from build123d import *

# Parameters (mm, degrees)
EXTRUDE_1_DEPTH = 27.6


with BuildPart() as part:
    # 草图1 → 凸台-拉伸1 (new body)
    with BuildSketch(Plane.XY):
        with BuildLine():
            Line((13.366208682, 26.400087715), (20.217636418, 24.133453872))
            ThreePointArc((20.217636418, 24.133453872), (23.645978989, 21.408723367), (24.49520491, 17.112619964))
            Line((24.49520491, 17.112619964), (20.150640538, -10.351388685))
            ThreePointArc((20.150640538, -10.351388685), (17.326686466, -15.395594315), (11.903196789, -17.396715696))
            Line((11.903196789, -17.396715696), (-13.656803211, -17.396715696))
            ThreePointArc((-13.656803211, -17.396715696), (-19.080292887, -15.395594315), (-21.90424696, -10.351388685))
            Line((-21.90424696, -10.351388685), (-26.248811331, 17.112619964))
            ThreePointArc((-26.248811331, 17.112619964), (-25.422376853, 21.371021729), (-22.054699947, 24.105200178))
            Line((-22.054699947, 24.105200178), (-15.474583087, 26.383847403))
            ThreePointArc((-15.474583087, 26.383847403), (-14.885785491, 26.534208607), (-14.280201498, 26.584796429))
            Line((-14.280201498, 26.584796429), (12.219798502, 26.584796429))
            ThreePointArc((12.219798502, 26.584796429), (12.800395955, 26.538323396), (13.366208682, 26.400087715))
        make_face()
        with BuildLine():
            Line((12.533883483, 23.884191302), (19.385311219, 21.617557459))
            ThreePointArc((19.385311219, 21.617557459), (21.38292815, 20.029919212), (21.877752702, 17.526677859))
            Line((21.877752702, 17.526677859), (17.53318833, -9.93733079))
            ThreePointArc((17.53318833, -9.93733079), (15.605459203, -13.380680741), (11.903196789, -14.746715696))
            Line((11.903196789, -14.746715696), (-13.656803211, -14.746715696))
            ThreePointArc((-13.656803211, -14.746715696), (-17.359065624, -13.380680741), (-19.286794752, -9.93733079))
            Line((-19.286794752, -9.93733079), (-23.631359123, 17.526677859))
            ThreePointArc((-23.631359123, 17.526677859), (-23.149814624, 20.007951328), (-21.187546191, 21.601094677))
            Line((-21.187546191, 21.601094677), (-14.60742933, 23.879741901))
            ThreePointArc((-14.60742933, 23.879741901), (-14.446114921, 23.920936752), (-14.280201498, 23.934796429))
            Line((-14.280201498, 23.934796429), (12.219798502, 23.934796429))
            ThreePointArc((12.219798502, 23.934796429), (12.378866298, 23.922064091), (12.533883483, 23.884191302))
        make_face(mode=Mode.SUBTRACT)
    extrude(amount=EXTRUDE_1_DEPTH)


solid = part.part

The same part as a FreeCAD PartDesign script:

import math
import FreeCAD as App
import Part
import Sketcher

V = App.Vector

doc = App.newDocument("Part")
body = doc.addObject("PartDesign::Body", "Body")

# Sketch on XY plane
sketch1 = doc.addObject("Sketcher::SketchObject", "Sketch")
body.addObject(sketch1)
sketch1.AttachmentSupport = (doc.XY_Plane, [""])
sketch1.MapMode = "FlatFace"
sketch1.addGeometry([
    Part.LineSegment(V(20.22, 24.13, 0), V(13.37, 26.4, 0)),  # 0
    Part.ArcOfCircle(Part.Circle(V(12.22, 22.93, 0), V(0, 0, 1), 3.65), math.radians(71.69), math.radians(90)),  # 1
    Part.LineSegment(V(12.22, 26.58, 0), V(-14.28, 26.58, 0)),  # 2
    Part.ArcOfCircle(Part.Circle(V(-14.28, 22.93, 0), V(0, 0, 1), 3.65), math.radians(90), math.radians(109.1)),  # 3
    Part.LineSegment(V(-15.47, 26.38, 0), V(-22.05, 24.11, 0)),  # 4
    Part.ArcOfCircle(Part.Circle(V(-19.98, 18.1, 0), V(0, 0, 1), 6.35), math.radians(109), math.radians(189)),  # 5
    Part.LineSegment(V(-26.25, 17.11, 0), V(-21.9, -10.35, 0)),  # 6
    Part.ArcOfCircle(Part.Circle(V(-13.66, -9.05, 0), V(0, 0, 1), 8.35), math.radians(-171), math.radians(-90)),  # 7
    Part.LineSegment(V(-13.66, -17.4, 0), V(11.9, -17.4, 0)),  # 8
    Part.ArcOfCircle(Part.Circle(V(11.9, -9.05, 0), V(0, 0, 1), 8.35), math.radians(-90), math.radians(-9)),  # 9
    Part.LineSegment(V(20.15, -10.35, 0), V(24.5, 17.11, 0)),  # 10
    Part.ArcOfCircle(Part.Circle(V(18.22, 18.1, 0), V(0, 0, 1), 6.35), math.radians(-9), math.radians(72)),  # 11
    Part.LineSegment(V(12.53, 23.88, 0), V(19.39, 21.62, 0)),  # 12
    Part.ArcOfCircle(Part.Circle(V(18.22, 18.1, 0), V(0, 0, 1), 3.7), math.radians(-9), math.radians(72)),  # 13
    Part.LineSegment(V(21.88, 17.53, 0), V(17.53, -9.94, 0)),  # 14
    Part.ArcOfCircle(Part.Circle(V(11.9, -9.05, 0), V(0, 0, 1), 5.7), math.radians(-90), math.radians(-9)),  # 15
    Part.LineSegment(V(11.9, -14.75, 0), V(-13.66, -14.75, 0)),  # 16
    Part.ArcOfCircle(Part.Circle(V(-13.66, -9.05, 0), V(0, 0, 1), 5.7), math.radians(-171), math.radians(-90)),  # 17
    Part.LineSegment(V(-19.29, -9.94, 0), V(-23.63, 17.53, 0)),  # 18
    Part.ArcOfCircle(Part.Circle(V(-19.98, 18.1, 0), V(0, 0, 1), 3.7), math.radians(109), math.radians(189)),  # 19
    Part.LineSegment(V(-21.19, 21.6, 0), V(-14.61, 23.88, 0)),  # 20
    Part.ArcOfCircle(Part.Circle(V(-14.28, 22.93, 0), V(0, 0, 1), 1), math.radians(90), math.radians(109.1)),  # 21
    Part.LineSegment(V(-14.28, 23.93, 0), V(12.22, 23.93, 0)),  # 22
    Part.ArcOfCircle(Part.Circle(V(12.22, 22.93, 0), V(0, 0, 1), 1), math.radians(71.69), math.radians(90)),  # 23
], False)
sketch1.addConstraint([
    Sketcher.Constraint("Tangent", 0, 2, 1, 1),
    Sketcher.Constraint("Tangent", 1, 2, 2, 1),
    Sketcher.Constraint("Tangent", 2, 2, 3, 1),
    Sketcher.Constraint("Tangent", 3, 2, 4, 1),
    Sketcher.Constraint("Tangent", 4, 2, 5, 1),
    Sketcher.Constraint("Tangent", 5, 2, 6, 1),
    Sketcher.Constraint("Tangent", 6, 2, 7, 1),
    Sketcher.Constraint("Tangent", 7, 2, 8, 1),
    Sketcher.Constraint("Tangent", 8, 2, 9, 1),
    Sketcher.Constraint("Tangent", 9, 2, 10, 1),
    Sketcher.Constraint("Tangent", 10, 2, 11, 1),
    Sketcher.Constraint("Tangent", 11, 2, 0, 1),
    Sketcher.Constraint("Tangent", 12, 2, 13, 2),
    Sketcher.Constraint("Tangent", 13, 1, 14, 1),
    Sketcher.Constraint("Tangent", 14, 2, 15, 2),
    Sketcher.Constraint("Tangent", 15, 1, 16, 1),
    Sketcher.Constraint("Tangent", 16, 2, 17, 2),
    Sketcher.Constraint("Tangent", 17, 1, 18, 1),
    Sketcher.Constraint("Tangent", 18, 2, 19, 2),
    Sketcher.Constraint("Tangent", 19, 1, 20, 1),
    Sketcher.Constraint("Tangent", 20, 2, 21, 2),
    Sketcher.Constraint("Tangent", 21, 1, 22, 1),
    Sketcher.Constraint("Tangent", 22, 2, 23, 2),
    Sketcher.Constraint("Tangent", 23, 1, 12, 1),
    Sketcher.Constraint("Horizontal", 2),
    Sketcher.Constraint("Horizontal", 8),
    Sketcher.Constraint("Horizontal", 16),
    Sketcher.Constraint("Horizontal", 22),
    Sketcher.Constraint("Coincident", 13, 3, 11, 3),
    Sketcher.Constraint("Coincident", 15, 3, 9, 3),
    Sketcher.Constraint("Coincident", 17, 3, 7, 3),
    Sketcher.Constraint("Coincident", 19, 3, 5, 3),
    Sketcher.Constraint("Coincident", 21, 3, 3, 3),
    Sketcher.Constraint("Coincident", 23, 3, 1, 3),
    Sketcher.Constraint("Equal", 1, 3),
    Sketcher.Constraint("Equal", 7, 9),
    Sketcher.Constraint("Equal", 5, 11),
    Sketcher.Constraint("Equal", 13, 19),
    Sketcher.Constraint("Parallel", 0, 12),
    Sketcher.Constraint("Parallel", 10, 14),
    Sketcher.Constraint("Horizontal", 5, 3, 11, 3),
    Sketcher.Constraint("Horizontal", 6, 2, 9, 2),
    Sketcher.Constraint("Radius", 21, 1.0),
    Sketcher.Constraint("Radius", 13, 3.7),
    Sketcher.Constraint("Radius", 15, 5.7),
    Sketcher.Constraint("Radius", 1, 3.65),
    Sketcher.Constraint("DistanceX", 2, 2, 2, 1, 26.5),
    Sketcher.Constraint("DistanceX", 8, 1, 8, 2, 25.56),
    Sketcher.Constraint("DistanceX", 5, 3, 11, 3, 38.2),
    Sketcher.Constraint("DistanceY", 5, 3, 3, 3, 4.83),
    Sketcher.Constraint("DistanceX", -1, 1, 1, 3, 12.219799),
    Sketcher.Constraint("DistanceX", 4, 2, -1, 1, 22.0547),
    Sketcher.Constraint("DistanceY", -1, 1, 4, 2, 24.1052),
    Sketcher.Constraint("Distance", 6, 27.805521),
])
pad1 = doc.addObject("PartDesign::Pad", "Pad")
body.addObject(pad1)
pad1.Profile = sketch1
pad1.Length = 27.6

doc.recompute()
